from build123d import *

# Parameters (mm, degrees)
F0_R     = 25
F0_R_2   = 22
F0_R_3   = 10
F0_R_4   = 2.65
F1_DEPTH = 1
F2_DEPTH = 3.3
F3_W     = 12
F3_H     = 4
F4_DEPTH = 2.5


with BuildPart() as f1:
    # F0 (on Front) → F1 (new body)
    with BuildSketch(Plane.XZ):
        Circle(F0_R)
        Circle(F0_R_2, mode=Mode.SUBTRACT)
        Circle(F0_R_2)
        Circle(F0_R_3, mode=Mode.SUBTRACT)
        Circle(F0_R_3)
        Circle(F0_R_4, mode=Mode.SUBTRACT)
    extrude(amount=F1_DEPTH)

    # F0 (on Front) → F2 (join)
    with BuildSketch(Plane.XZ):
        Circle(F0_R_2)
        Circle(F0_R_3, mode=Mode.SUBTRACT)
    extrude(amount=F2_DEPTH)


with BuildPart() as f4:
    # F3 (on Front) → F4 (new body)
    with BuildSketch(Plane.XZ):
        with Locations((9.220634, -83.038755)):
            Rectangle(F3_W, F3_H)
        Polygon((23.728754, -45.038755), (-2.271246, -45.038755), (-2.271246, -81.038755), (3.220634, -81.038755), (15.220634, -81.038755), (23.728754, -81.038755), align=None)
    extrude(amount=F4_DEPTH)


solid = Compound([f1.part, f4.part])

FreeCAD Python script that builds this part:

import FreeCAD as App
import Part
import Sketcher

V = App.Vector
Q = App.Units.Quantity

doc = App.newDocument("Part")
body = doc.addObject("PartDesign::Body", "Body")

sketch1 = body.newObject("Sketcher::SketchObject", "Sketch")
sketch1.AttachmentSupport = (doc.getObject("XZ_Plane"), [""])
sketch1.MapMode = "FlatFace"
sketch1.addGeometry([
    Part.Circle(V(0, 0, 0), V(0, 0, 1), 25),
    Part.Circle(V(0, 0, 0), V(0, 0, 1), 2.65),
], False)
sketch1.addConstraint([
    Sketcher.Constraint("Coincident", 0, 3, -1, 1),
    Sketcher.Constraint("Coincident", 1, 3, -1, 1),
    Sketcher.Constraint("Diameter", 0, Q("50 mm")),
    Sketcher.Constraint("Diameter", 1, Q("5.3 mm")),
])
pad1 = body.newObject("PartDesign::Pad", "Pad")
pad1.Profile = sketch1
pad1.Length = 1

sketch2 = body.newObject("Sketcher::SketchObject", "Sketch001")
sketch2.AttachmentSupport = (doc.getObject("XZ_Plane"), [""])
sketch2.MapMode = "FlatFace"
sketch2.addGeometry([
    Part.Circle(V(0, 0, 0), V(0, 0, 1), 22),
    Part.Circle(V(0, 0, 0), V(0, 0, 1), 10),
], False)
sketch2.addConstraint([
    Sketcher.Constraint("Coincident", 0, 3, -1, 1),
    Sketcher.Constraint("Coincident", 1, 3, -1, 1),
    Sketcher.Constraint("Diameter", 0, Q("44 mm")),
    Sketcher.Constraint("Diameter", 1, Q("20 mm")),
])
pad2 = body.newObject("PartDesign::Pad", "Pad001")
pad2.Profile = sketch2
pad2.Length = 3.3
body2 = doc.addObject("PartDesign::Body", "Body001")

sketch3 = body2.newObject("Sketcher::SketchObject", "Sketch002")
sketch3.AttachmentSupport = (doc.getObject("XZ_Plane001"), [""])
sketch3.MapMode = "FlatFace"
sketch3.addGeometry([
    Part.LineSegment(V(3.220634, -81.038755, 0), V(3.220634, -85.038755, 0)),
    Part.LineSegment(V(3.220634, -85.038755, 0), V(15.220634, -85.038755, 0)),
    Part.LineSegment(V(15.220634, -85.038755, 0), V(15.220634, -81.038755, 0)),
    Part.LineSegment(V(15.220634, -81.038755, 0), V(23.728754, -81.038755, 0)),
    Part.LineSegment(V(23.728754, -81.038755, 0), V(23.728754, -45.038755, 0)),
    Part.LineSegment(V(23.728754, -45.038755, 0), V(-2.271246, -45.038755, 0)),
    Part.LineSegment(V(-2.271246, -45.038755, 0), V(-2.271246, -81.038755, 0)),
    Part.LineSegment(V(-2.271246, -81.038755, 0), V(3.220634, -81.038755, 0)),
], False)
sketch3.addConstraint([
    Sketcher.Constraint("Coincident", 0, 2, 1, 1),
    Sketcher.Constraint("Coincident", 1, 2, 2, 1),
    Sketcher.Constraint("Coincident", 2, 2, 3, 1),
    Sketcher.Constraint("Coincident", 3, 2, 4, 1),
    Sketcher.Constraint("Coincident", 4, 2, 5, 1),
    Sketcher.Constraint("Coincident", 5, 2, 6, 1),
    Sketcher.Constraint("Coincident", 6, 2, 7, 1),
    Sketcher.Constraint("Coincident", 7, 2, 0, 1),
    Sketcher.Constraint("Vertical", 0),
    Sketcher.Constraint("Horizontal", 1),
    Sketcher.Constraint("Vertical", 2),
    Sketcher.Constraint("Horizontal", 3),
    Sketcher.Constraint("Vertical", 4),
    Sketcher.Constraint("Horizontal", 5),
    Sketcher.Constraint("Vertical", 6),
    Sketcher.Constraint("Horizontal", 7),
    Sketcher.Constraint("Horizontal", 3, 2, 6, 2),
    Sketcher.Constraint("DistanceX", 1, 1, 1, 2, Q("12 mm")),
    Sketcher.Constraint("DistanceX", 5, 2, 5, 1, Q("26 mm")),
    Sketcher.Constraint("DistanceY", 0, 2, 0, 1, Q("4 mm")),
    Sketcher.Constraint("DistanceY", 4, 1, 4, 2, Q("36 mm")),
    Sketcher.Constraint("DistanceX", 3, 1, 3, 2, Q("8.50812 mm")),
    Sketcher.Constraint("DistanceX", -1, 1, 0, 2, Q("3.220634 mm")),
    Sketcher.Constraint("DistanceY", 0, 2, -1, 1, Q("85.038755 mm")),
])
pad3 = body2.newObject("PartDesign::Pad", "Pad002")
pad3.Profile = sketch3
pad3.Length = 2.5

doc.recompute()
